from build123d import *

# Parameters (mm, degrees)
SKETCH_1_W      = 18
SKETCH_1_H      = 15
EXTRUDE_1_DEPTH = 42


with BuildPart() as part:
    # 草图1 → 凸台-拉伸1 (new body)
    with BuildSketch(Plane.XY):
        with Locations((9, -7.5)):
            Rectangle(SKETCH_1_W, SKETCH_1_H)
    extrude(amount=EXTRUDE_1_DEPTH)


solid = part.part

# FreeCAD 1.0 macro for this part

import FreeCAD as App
import Part
import Sketcher
from FreeCAD import Vector
Q = App.Units.Quantity


def add_polygon(sketch, points):
    """Adds a closed chain of lines whose ends are joined by coincident constraints."""
    first, n = sketch.GeometryCount, len(points)
    for a, b in zip(points, points[1:] + points[:1]):
        sketch.addGeometry(Part.LineSegment(App.Vector(*a, 0), App.Vector(*b, 0)), False)
    for i in range(n):
        sketch.addConstraint(Sketcher.Constraint("Coincident", first + i, 2, first + (i + 1) % n, 1))

doc = App.newDocument("Part")
body = doc.addObject("PartDesign::Body", "Body")

# Sketch on XY plane
sketch1 = body.newObject("Sketcher::SketchObject", "Sketch")
sketch1.AttachmentSupport = (doc.getObject("XY_Plane"), [""])
sketch1.MapMode = "FlatFace"
add_polygon(sketch1, [(0, 0), (0, -15), (18, -15), (18, 0)])  # lines 0-3
sketch1.addConstraint(Sketcher.Constraint("Vertical", 0))
sketch1.addConstraint(Sketcher.Constraint("Horizontal", 1))
sketch1.addConstraint(Sketcher.Constraint("Vertical", 2))
sketch1.addConstraint(Sketcher.Constraint("Horizontal", 3))
sketch1.addConstraint(Sketcher.Constraint("Coincident", 3, 2, -1, 1))
sketch1.addConstraint(Sketcher.Constraint("DistanceX", 1, 1, 1, 2, Q("18 mm")))
sketch1.addConstraint(Sketcher.Constraint("DistanceY", 0, 2, 0, 1, Q("15 mm")))
pad1 = body.newObject("PartDesign::Pad", "Pad")
pad1.Profile = sketch1
pad1.Length = 42

doc.recompute()
